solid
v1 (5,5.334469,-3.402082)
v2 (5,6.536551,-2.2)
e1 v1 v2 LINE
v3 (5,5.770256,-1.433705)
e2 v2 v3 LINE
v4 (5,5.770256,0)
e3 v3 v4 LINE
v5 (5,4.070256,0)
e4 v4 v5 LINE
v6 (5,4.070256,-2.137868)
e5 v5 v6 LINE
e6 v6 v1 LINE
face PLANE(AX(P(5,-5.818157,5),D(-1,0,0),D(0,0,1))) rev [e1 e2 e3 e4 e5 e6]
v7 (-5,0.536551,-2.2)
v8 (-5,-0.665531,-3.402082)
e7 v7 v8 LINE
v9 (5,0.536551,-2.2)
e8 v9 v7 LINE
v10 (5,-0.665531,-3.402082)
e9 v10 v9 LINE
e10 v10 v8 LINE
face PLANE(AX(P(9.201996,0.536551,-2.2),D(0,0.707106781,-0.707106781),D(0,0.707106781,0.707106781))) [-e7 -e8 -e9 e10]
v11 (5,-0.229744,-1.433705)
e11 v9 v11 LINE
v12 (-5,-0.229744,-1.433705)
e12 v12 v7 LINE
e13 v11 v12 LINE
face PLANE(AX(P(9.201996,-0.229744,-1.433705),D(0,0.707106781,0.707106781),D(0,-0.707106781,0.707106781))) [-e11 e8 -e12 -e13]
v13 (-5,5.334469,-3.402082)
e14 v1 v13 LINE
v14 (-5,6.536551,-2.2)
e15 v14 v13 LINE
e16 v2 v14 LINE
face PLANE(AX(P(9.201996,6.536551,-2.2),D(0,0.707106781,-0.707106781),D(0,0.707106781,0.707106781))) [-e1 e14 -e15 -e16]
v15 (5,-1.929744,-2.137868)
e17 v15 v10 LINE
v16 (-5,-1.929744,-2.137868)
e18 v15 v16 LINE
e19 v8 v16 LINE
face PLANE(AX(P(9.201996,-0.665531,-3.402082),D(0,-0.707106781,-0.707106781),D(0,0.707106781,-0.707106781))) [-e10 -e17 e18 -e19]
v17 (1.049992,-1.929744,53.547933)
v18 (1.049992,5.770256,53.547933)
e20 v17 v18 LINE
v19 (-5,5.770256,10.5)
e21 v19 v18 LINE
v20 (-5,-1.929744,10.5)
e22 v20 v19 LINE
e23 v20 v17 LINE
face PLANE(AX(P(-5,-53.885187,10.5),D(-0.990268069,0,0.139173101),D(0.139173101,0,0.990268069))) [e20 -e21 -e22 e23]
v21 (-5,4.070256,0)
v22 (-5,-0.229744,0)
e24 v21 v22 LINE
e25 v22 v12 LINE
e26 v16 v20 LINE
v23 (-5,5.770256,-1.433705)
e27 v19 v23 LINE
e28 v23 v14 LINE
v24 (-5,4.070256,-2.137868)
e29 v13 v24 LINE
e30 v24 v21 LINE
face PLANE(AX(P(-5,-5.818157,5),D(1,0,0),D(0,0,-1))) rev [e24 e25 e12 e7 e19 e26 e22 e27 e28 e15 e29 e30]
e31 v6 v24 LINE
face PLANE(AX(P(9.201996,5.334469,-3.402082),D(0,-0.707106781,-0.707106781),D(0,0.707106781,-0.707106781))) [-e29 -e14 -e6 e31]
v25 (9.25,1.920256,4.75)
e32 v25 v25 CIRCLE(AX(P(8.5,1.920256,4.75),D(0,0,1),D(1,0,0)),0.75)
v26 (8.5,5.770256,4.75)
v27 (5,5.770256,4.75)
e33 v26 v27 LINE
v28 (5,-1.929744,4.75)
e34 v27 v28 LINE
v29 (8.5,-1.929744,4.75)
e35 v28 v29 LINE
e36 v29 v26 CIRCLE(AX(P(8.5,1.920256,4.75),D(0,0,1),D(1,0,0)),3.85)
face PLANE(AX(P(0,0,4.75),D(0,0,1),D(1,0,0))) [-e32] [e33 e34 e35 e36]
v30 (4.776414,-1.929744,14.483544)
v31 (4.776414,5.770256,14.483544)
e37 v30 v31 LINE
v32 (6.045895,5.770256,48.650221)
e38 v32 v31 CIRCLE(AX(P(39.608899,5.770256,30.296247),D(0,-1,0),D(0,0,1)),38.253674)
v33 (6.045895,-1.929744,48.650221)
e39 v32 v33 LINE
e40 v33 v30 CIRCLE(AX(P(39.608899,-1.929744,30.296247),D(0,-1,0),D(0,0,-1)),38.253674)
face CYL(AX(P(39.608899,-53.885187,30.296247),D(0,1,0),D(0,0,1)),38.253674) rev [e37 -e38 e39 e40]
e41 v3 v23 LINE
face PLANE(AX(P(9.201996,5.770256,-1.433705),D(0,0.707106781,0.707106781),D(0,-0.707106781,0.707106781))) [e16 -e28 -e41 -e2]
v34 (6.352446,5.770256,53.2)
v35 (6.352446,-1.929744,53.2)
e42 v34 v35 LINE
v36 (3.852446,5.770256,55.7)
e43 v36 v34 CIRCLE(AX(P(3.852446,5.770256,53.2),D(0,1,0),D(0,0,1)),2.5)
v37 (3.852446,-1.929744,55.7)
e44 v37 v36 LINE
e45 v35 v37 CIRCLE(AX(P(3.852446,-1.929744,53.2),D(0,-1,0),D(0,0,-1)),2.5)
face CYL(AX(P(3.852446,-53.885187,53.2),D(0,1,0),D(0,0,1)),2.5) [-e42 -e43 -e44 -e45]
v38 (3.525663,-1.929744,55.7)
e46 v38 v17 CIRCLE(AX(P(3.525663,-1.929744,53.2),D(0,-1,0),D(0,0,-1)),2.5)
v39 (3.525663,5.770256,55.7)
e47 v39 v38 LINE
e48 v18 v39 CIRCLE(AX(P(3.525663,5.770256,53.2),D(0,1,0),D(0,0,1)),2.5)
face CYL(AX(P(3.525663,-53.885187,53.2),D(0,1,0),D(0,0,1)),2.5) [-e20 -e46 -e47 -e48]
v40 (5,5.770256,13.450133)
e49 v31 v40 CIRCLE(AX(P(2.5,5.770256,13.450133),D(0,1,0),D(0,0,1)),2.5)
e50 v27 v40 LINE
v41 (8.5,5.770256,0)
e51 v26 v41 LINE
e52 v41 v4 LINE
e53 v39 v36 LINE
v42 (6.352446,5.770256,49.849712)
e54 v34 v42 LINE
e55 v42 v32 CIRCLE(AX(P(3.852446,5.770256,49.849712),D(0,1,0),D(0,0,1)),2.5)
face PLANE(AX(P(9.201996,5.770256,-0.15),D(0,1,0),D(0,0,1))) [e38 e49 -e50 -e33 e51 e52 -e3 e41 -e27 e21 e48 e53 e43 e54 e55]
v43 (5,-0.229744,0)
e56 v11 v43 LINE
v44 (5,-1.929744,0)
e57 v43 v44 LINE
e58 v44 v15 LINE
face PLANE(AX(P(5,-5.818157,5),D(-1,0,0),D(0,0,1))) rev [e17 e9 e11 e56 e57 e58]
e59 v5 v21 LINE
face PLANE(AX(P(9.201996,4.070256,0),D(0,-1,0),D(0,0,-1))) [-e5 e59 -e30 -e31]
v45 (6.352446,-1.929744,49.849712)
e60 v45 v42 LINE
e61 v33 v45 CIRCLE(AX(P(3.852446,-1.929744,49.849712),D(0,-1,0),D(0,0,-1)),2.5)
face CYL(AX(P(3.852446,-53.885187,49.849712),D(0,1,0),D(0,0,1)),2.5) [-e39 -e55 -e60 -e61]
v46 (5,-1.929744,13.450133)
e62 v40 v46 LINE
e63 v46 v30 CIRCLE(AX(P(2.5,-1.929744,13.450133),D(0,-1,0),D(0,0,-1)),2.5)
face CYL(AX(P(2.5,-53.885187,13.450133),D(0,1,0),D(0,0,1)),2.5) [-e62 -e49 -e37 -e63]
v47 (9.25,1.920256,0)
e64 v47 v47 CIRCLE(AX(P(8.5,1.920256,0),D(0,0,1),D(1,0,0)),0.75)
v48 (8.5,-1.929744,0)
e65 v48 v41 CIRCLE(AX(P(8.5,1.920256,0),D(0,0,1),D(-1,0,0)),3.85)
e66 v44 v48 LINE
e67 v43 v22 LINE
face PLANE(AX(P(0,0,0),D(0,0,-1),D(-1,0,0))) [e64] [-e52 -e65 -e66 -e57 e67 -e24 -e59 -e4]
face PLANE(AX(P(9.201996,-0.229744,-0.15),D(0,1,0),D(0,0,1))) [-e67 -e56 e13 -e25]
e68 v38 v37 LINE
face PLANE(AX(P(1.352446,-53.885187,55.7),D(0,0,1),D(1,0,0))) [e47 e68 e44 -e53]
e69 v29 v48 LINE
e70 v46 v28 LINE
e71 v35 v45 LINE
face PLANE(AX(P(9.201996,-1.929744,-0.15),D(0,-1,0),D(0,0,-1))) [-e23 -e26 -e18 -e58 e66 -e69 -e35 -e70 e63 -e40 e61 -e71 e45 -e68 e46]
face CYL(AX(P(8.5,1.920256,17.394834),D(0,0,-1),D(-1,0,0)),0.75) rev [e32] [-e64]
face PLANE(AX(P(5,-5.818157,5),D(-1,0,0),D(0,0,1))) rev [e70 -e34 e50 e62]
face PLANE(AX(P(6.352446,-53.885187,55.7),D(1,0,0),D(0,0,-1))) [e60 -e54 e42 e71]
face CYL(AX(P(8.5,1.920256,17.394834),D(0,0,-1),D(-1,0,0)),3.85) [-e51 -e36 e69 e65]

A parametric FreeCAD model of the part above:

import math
import FreeCAD as App
import Part
import Sketcher

V = App.Vector
Q = App.Units.Quantity


def edges_at(feature, points):
    """Names of the edges that pass closest to the given points."""
    edges = feature.Shape.Edges
    near = lambda p: min(range(len(edges)), key=lambda i: edges[i].distToShape(Part.Vertex(*p))[0])
    return sorted({f"Edge{near(p) + 1}" for p in points})

doc = App.newDocument("Part")
params = doc.addObject("Spreadsheet::Sheet", "Params")
for row, (alias, value) in enumerate([
    ("sketch1_width", "10 mm"),
    ("pad1_length", "5 mm"),
    ("sketch2_width", "1.7 mm"),
    ("sketch2_length", "1.7 mm"),
    ("pad2_length", "10 mm"),
    ("sketch3_width", "10 mm"),
    ("sketch3_height", "3.18 mm"),
    ("pocket1_length", "5 mm"),
    ("sketch4_width", "5 mm"),
    ("sketch4_width2", "10 mm"),
    ("sketch4_height", "9 mm"),
    ("sketch4_height2", "5.5 mm"),
    ("sketch4_height3", "6.5 mm"),
    ("pad3_length", "7.7 mm"),
    ("sketch5_diameter", "1.5 mm"),
    ("sketch5_radius", "3.85 mm"),
    ("sketch5_width", "3.5 mm"),
    ("pad4_length", "4.75 mm"),
    ("fillet_radius", "2.5 mm"),
], start=1):
    params.set(f"A{row}", alias)
    params.set(f"B{row}", "=" + value)
    params.setAlias(f"B{row}", alias)

body = doc.addObject("PartDesign::Body", "Body")

# Sketch on XY plane
sketch1 = body.newObject("Sketcher::SketchObject", "Sketch")
sketch1.AttachmentSupport = (doc.getObject("XY_Plane"), [""])
sketch1.MapMode = "FlatFace"
sketch1.addGeometry(Part.LineSegment(V(-5, 9, 0), V(-5, -6, 0)), False)
sketch1.addGeometry(Part.LineSegment(V(-5, -6, 0), V(5, -6, 0)), False)
sketch1.addGeometry(Part.LineSegment(V(5, -6, 0), V(5, 9, 0)), False)
sketch1.addGeometry(Part.LineSegment(V(5, 9, 0), V(-5, 9, 0)), False)
sketch1.addConstraint(Sketcher.Constraint("Coincident", 0, 2, 1, 1))
sketch1.addConstraint(Sketcher.Constraint("Coincident", 1, 2, 2, 1))
sketch1.addConstraint(Sketcher.Constraint("Coincident", 2, 2, 3, 1))
sketch1.addConstraint(Sketcher.Constraint("Coincident", 3, 2, 0, 1))
sketch1.addConstraint(Sketcher.Constraint("Vertical", 0))
sketch1.addConstraint(Sketcher.Constraint("Horizontal", 1))
sketch1.addConstraint(Sketcher.Constraint("Vertical", 2))
sketch1.addConstraint(Sketcher.Constraint("Horizontal", 3))
sketch1.addConstraint(Sketcher.Constraint("DistanceX", 1, 1, 1, 2, Q("10 mm")))
sketch1.addConstraint(Sketcher.Constraint("DistanceX", 0, 2, -1, 1, Q("5 mm")))
sketch1.addConstraint(Sketcher.Constraint("DistanceY", 0, 2, 0, 1, Q("14.768412 mm")))
sketch1.addConstraint(Sketcher.Constraint("DistanceY", 0, 2, -1, 1, Q("5.818157 mm")))
sketch1.setExpression("Constraints[8]", "Params.sketch1_width")
pad1 = body.newObject("PartDesign::Pad", "Pad")
pad1.Profile = sketch1
pad1.setExpression("Length", "Params.pad1_length")

# Sketch on YZ plane
sketch2 = body.newObject("Sketcher::SketchObject", "Sketch001")
sketch2.AttachmentSupport = (doc.getObject("YZ_Plane"), [""])
sketch2.MapMode = "FlatFace"
sketch2.AttachmentOffset = App.Placement(V(0, 0, -5), App.Rotation())
sketch2.addGeometry(Part.LineSegment(V(5.8, 0, 0), V(5.8, -1.4, 0)), False)
sketch2.addGeometry(Part.LineSegment(V(5.8, -1.4, 0), V(6.5, -2.2, 0)), False)
sketch2.addGeometry(Part.LineSegment(V(6.5, -2.2, 0), V(5.3, -3.4, 0)), False)
sketch2.addGeometry(Part.LineSegment(V(5.3, -3.4, 0), V(4.1, -2.1, 0)), False)
sketch2.addGeometry(Part.LineSegment(V(4.1, -2.1, 0), V(4.1, 0, 0)), False)
sketch2.addGeometry(Part.LineSegment(V(4.1, 0, 0), V(5.8, 0, 0)), False)
sketch2.addGeometry(Part.LineSegment(V(-1.9, 0, 0), V(-0.2, 0, 0)), False)
sketch2.addGeometry(Part.LineSegment(V(-0.2, 0, 0), V(-0.2, -1.4, 0)), False)
sketch2.addGeometry(Part.LineSegment(V(-0.2, -1.4, 0), V(0.5, -2.2, 0)), False)
sketch2.addGeometry(Part.LineSegment(V(0.5, -2.2, 0), V(-0.7, -3.4, 0)), False)
sketch2.addGeometry(Part.LineSegment(V(-0.7, -3.4, 0), V(-1.9, -2.1, 0)), False)
sketch2.addGeometry(Part.LineSegment(V(-1.9, -2.1, 0), V(-1.9, 0, 0)), False)
sketch2.addConstraint(Sketcher.Constraint("Coincident", 0, 2, 1, 1))
sketch2.addConstraint(Sketcher.Constraint("Coincident", 1, 2, 2, 1))
sketch2.addConstraint(Sketcher.Constraint("Coincident", 2, 2, 3, 1))
sketch2.addConstraint(Sketcher.Constraint("Coincident", 3, 2, 4, 1))
sketch2.addConstraint(Sketcher.Constraint("Coincident", 4, 2, 5, 1))
sketch2.addConstraint(Sketcher.Constraint("Coincident", 5, 2, 0, 1))
sketch2.addConstraint(Sketcher.Constraint("Coincident", 6, 2, 7, 1))
sketch2.addConstraint(Sketcher.Constraint("Coincident", 7, 2, 8, 1))
sketch2.addConstraint(Sketcher.Constraint("Coincident", 8, 2, 9, 1))
sketch2.addConstraint(Sketcher.Constraint("Coincident", 9, 2, 10, 1))
sketch2.addConstraint(Sketcher.Constraint("Coincident", 10, 2, 11, 1))
sketch2.addConstraint(Sketcher.Constraint("Coincident", 11, 2, 6, 1))
sketch2.addConstraint(Sketcher.Constraint("Vertical", 0))
sketch2.addConstraint(Sketcher.Constraint("Vertical", 4))
sketch2.addConstraint(Sketcher.Constraint("Horizontal", 5))
sketch2.addConstraint(Sketcher.Constraint("Horizontal", 6))
sketch2.addConstraint(Sketcher.Constraint("Vertical", 7))
sketch2.addConstraint(Sketcher.Constraint("Vertical", 11))
sketch2.addConstraint(Sketcher.Constraint("PointOnObject", 4, 2, -1))
sketch2.addConstraint(Sketcher.Constraint("PointOnObject", 6, 2, -1))
sketch2.addConstraint(Sketcher.Constraint("Perpendicular", 1, 2))
sketch2.addConstraint(Sketcher.Constraint("Perpendicular", 2, 3))
sketch2.addConstraint(Sketcher.Constraint("Parallel", 3, 8))
sketch2.addConstraint(Sketcher.Constraint("Perpendicular", 8, 9))
sketch2.addConstraint(Sketcher.Constraint("Perpendicular", 9, 10))
sketch2.addConstraint(Sketcher.Constraint("Horizontal", 0, 2, 7, 2))
sketch2.addConstraint(Sketcher.Constraint("Horizontal", 1, 2, 8, 2))
sketch2.addConstraint(Sketcher.Constraint("Horizontal", 2, 2, 9, 2))
sketch2.addConstraint(Sketcher.Constraint("Horizontal", 3, 2, 10, 2))
sketch2.addConstraint(Sketcher.Constraint("Angle", 1, Q("-45 deg")))
sketch2.addConstraint(Sketcher.Constraint("DistanceX", 5, 1, 5, 2, Q("1.7 mm")))
sketch2.addConstraint(Sketcher.Constraint("DistanceX", 6, 2, 5, 2, Q("6 mm")))
sketch2.addConstraint(Sketcher.Constraint("Distance", 2, Q("1.7 mm")))
sketch2.addConstraint(Sketcher.Constraint("DistanceY", 1, 2, -1, 1, Q("2.2 mm")))
sketch2.addConstraint(Sketcher.Constraint("DistanceY", 0, 2, 0, 1, Q("1.433705 mm")))
sketch2.addConstraint(Sketcher.Constraint("DistanceX", -1, 1, 1, 2, Q("6.536551 mm")))
sketch2.setExpression("Constraints[30]", "Params.sketch2_width")
sketch2.setExpression("Constraints[32]", "Params.sketch2_length")
pad2 = body.newObject("PartDesign::Pad", "Pad001")
pad2.Profile = sketch2
pad2.setExpression("Length", "Params.pad2_length")

# Sketch on XY plane
sketch3 = body.newObject("Sketcher::SketchObject", "Sketch002")
sketch3.AttachmentSupport = (doc.getObject("XY_Plane"), [""])
sketch3.MapMode = "FlatFace"
sketch3.addGeometry(Part.LineSegment(V(5, 9, 0), V(5, 5.8, 0)), False)
sketch3.addGeometry(Part.LineSegment(V(5, 5.8, 0), V(-5, 5.8, 0)), False)
sketch3.addGeometry(Part.LineSegment(V(-5, 5.8, 0), V(-5, 9, 0)), False)
sketch3.addGeometry(Part.LineSegment(V(-5, 9, 0), V(5, 9, 0)), False)
sketch3.addGeometry(Part.LineSegment(V(5, -1.9, 0), V(5, -5.8, 0)), False)
sketch3.addGeometry(Part.LineSegment(V(5, -5.8, 0), V(-5, -5.8, 0)), False)
sketch3.addGeometry(Part.LineSegment(V(-5, -5.8, 0), V(-5, -1.9, 0)), False)
sketch3.addGeometry(Part.LineSegment(V(-5, -1.9, 0), V(5, -1.9, 0)), False)
sketch3.addConstraint(Sketcher.Constraint("Coincident", 0, 2, 1, 1))
sketch3.addConstraint(Sketcher.Constraint("Coincident", 1, 2, 2, 1))
sketch3.addConstraint(Sketcher.Constraint("Coincident", 2, 2, 3, 1))
sketch3.addConstraint(Sketcher.Constraint("Coincident", 3, 2, 0, 1))
sketch3.addConstraint(Sketcher.Constraint("Coincident", 4, 2, 5, 1))
sketch3.addConstraint(Sketcher.Constraint("Coincident", 5, 2, 6, 1))
sketch3.addConstraint(Sketcher.Constraint("Coincident", 6, 2, 7, 1))
sketch3.addConstraint(Sketcher.Constraint("Coincident", 7, 2, 4, 1))
sketch3.addConstraint(Sketcher.Constraint("Vertical", 0))
sketch3.addConstraint(Sketcher.Constraint("Horizontal", 1))
sketch3.addConstraint(Sketcher.Constraint("Vertical", 2))
sketch3.addConstraint(Sketcher.Constraint("Horizontal", 3))
sketch3.addConstraint(Sketcher.Constraint("Vertical", 4))
sketch3.addConstraint(Sketcher.Constraint("Horizontal", 5))
sketch3.addConstraint(Sketcher.Constraint("Vertical", 6))
sketch3.addConstraint(Sketcher.Constraint("Horizontal", 7))
sketch3.addConstraint(Sketcher.Constraint("Vertical", 3, 2, 4, 2))
sketch3.addConstraint(Sketcher.Constraint("Vertical", 2, 2, 5, 2))
sketch3.addConstraint(Sketcher.Constraint("DistanceX", 1, 2, 1, 1, Q("10 mm")))
sketch3.addConstraint(Sketcher.Constraint("DistanceX", -1, 1, 0, 2, Q("5 mm")))
sketch3.addConstraint(Sketcher.Constraint("DistanceY", 0, 2, 0, 1, Q("3.18 mm")))
sketch3.addConstraint(Sketcher.Constraint("DistanceY", 6, 2, 1, 2, Q("7.7 mm")))
sketch3.addConstraint(Sketcher.Constraint("DistanceY", 4, 2, 4, 1, Q("3.888412 mm")))
sketch3.addConstraint(Sketcher.Constraint("DistanceY", -1, 1, 0, 2, Q("5.770256 mm")))
sketch3.setExpression("Constraints[18]", "Params.sketch3_width")
sketch3.setExpression("Constraints[20]", "Params.sketch3_height")
pocket1 = body.newObject("PartDesign::Pocket", "Pocket")
pocket1.Profile = sketch3
pocket1.setExpression("Length", "Params.pocket1_length")
pocket1.Reversed = True

# Sketch on XZ plane
sketch4 = body.newObject("Sketcher::SketchObject", "Sketch003")
sketch4.AttachmentSupport = (doc.getObject("XZ_Plane"), [""])
sketch4.MapMode = "FlatFace"
sketch4.AttachmentOffset = App.Placement(V(0, 0, -5.770256), App.Rotation())
sketch4.addGeometry(Part.LineSegment(V(-5, 5, 0), V(-5, 10, 0)), False)
sketch4.addGeometry(Part.LineSegment(V(-5, 10, 0), V(1, 56, 0)), False)
sketch4.addGeometry(Part.LineSegment(V(1, 56, 0), V(6, 56, 0)), False)
sketch4.addGeometry(Part.LineSegment(V(6, 56, 0), V(6, 49, 0)), False)
sketch4.addGeometry(Part.ArcOfCircle(Part.Circle(V(40, 30, 0), V(0, 0, 1), 38), math.radians(150), math.radians(205)), False)
sketch4.addGeometry(Part.LineSegment(V(5, 14, 0), V(5, 5, 0)), False)
sketch4.addGeometry(Part.LineSegment(V(5, 5, 0), V(-5, 5, 0)), False)
sketch4.addConstraint(Sketcher.Constraint("Coincident", 0, 2, 1, 1))
sketch4.addConstraint(Sketcher.Constraint("Coincident", 1, 2, 2, 1))
sketch4.addConstraint(Sketcher.Constraint("Coincident", 2, 2, 3, 1))
sketch4.addConstraint(Sketcher.Constraint("Coincident", 3, 2, 4, 1))
sketch4.addConstraint(Sketcher.Constraint("Coincident", 4, 2, 5, 1))
sketch4.addConstraint(Sketcher.Constraint("Coincident", 5, 2, 6, 1))
sketch4.addConstraint(Sketcher.Constraint("Coincident", 6, 2, 0, 1))
sketch4.addConstraint(Sketcher.Constraint("Vertical", 0))
sketch4.addConstraint(Sketcher.Constraint("Horizontal", 2))
sketch4.addConstraint(Sketcher.Constraint("Vertical", 3))
sketch4.addConstraint(Sketcher.Constraint("Vertical", 5))
sketch4.addConstraint(Sketcher.Constraint("Horizontal", 6))
sketch4.addConstraint(Sketcher.Constraint("DistanceX", 2, 1, 2, 2, Q("5 mm")))
sketch4.addConstraint(Sketcher.Constraint("DistanceX", 6, 2, 6, 1, Q("10 mm")))
sketch4.addConstraint(Sketcher.Constraint("DistanceY", 5, 2, 5, 1, Q("9 mm")))
sketch4.addConstraint(Sketcher.Constraint("Angle", 1, Q("82 deg")))
sketch4.addConstraint(Sketcher.Constraint("DistanceY", 0, 1, 0, 2, Q("5.5 mm")))
sketch4.addConstraint(Sketcher.Constraint("DistanceY", 3, 2, 3, 1, Q("6.5 mm")))
sketch4.addConstraint(Sketcher.Constraint("DistanceX", 0, 2, -1, 1, Q("5 mm")))
sketch4.addConstraint(Sketcher.Constraint("DistanceY", -1, 1, 4, 2, Q("14 mm")))
sketch4.addConstraint(Sketcher.Constraint("DistanceY", -1, 1, 1, 2, Q("55.7 mm")))
sketch4.addConstraint(Sketcher.Constraint("Radius", 4, Q("38.253674 mm")))
sketch4.setExpression("Constraints[12]", "Params.sketch4_width")
sketch4.setExpression("Constraints[13]", "Params.sketch4_width2")
sketch4.setExpression("Constraints[14]", "Params.sketch4_height")
sketch4.setExpression("Constraints[16]", "Params.sketch4_height2")
sketch4.setExpression("Constraints[17]", "Params.sketch4_height3")
pad3 = body.newObject("PartDesign::Pad", "Pad002")
pad3.Profile = sketch4
pad3.setExpression("Length", "Params.pad3_length")

# Sketch on XY plane
sketch5 = body.newObject("Sketcher::SketchObject", "Sketch004")
sketch5.AttachmentSupport = (doc.getObject("XY_Plane"), [""])
sketch5.MapMode = "FlatFace"
sketch5.addGeometry(Part.LineSegment(V(8.5, 5.8, 0), V(5, 5.8, 0)), False)
sketch5.addGeometry(Part.LineSegment(V(5, 5.8, 0), V(5, -1.9, 0)), False)
sketch5.addGeometry(Part.LineSegment(V(5, -1.9, 0), V(8.5, -1.9, 0)), False)
sketch5.addGeometry(Part.ArcOfCircle(Part.Circle(V(8.5, 1.9, 0), V(0, 0, 1), 3.9), math.radians(-90), math.radians(90)), False)
sketch5.addGeometry(Part.Circle(V(8.5, 1.9, 0), V(0, 0, 1), 0.8), False)
sketch5.addConstraint(Sketcher.Constraint("Coincident", 0, 2, 1, 1))
sketch5.addConstraint(Sketcher.Constraint("Coincident", 1, 2, 2, 1))
sketch5.addConstraint(Sketcher.Constraint("Tangent", 2, 2, 3, 1))
sketch5.addConstraint(Sketcher.Constraint("Tangent", 3, 2, 0, 1))
sketch5.addConstraint(Sketcher.Constraint("Horizontal", 0))
sketch5.addConstraint(Sketcher.Constraint("Vertical", 1))
sketch5.addConstraint(Sketcher.Constraint("Horizontal", 2))
sketch5.addConstraint(Sketcher.Constraint("Coincident", 4, 3, 3, 3))
sketch5.addConstraint(Sketcher.Constraint("Diameter", 4, Q("1.5 mm")))
sketch5.addConstraint(Sketcher.Constraint("Radius", 3, Q("3.85 mm")))
sketch5.addConstraint(Sketcher.Constraint("DistanceX", 0, 2, 0, 1, Q("3.5 mm")))
sketch5.addConstraint(Sketcher.Constraint("DistanceX", -1, 1, 0, 2, Q("5 mm")))
sketch5.addConstraint(Sketcher.Constraint("DistanceY", -1, 1, 3, 3, Q("1.920256 mm")))
sketch5.setExpression("Constraints[8]", "Params.sketch5_diameter")
sketch5.setExpression("Constraints[9]", "Params.sketch5_radius")
sketch5.setExpression("Constraints[10]", "Params.sketch5_width")
pad4 = body.newObject("PartDesign::Pad", "Pad003")
pad4.Profile = sketch5
pad4.setExpression("Length", "Params.pad4_length")
doc.recompute()

fillet = body.newObject("PartDesign::Fillet", "Fillet")
fillet.Base = (pad4, edges_at(pad4, [
    (6.352, 1.92, 49.2),
    (5, 1.92, 14),
    (1.352, 1.92, 55.7),
    (6.352, 1.92, 55.7),
]))
fillet.setExpression("Radius", "Params.fillet_radius")

doc.recompute()
